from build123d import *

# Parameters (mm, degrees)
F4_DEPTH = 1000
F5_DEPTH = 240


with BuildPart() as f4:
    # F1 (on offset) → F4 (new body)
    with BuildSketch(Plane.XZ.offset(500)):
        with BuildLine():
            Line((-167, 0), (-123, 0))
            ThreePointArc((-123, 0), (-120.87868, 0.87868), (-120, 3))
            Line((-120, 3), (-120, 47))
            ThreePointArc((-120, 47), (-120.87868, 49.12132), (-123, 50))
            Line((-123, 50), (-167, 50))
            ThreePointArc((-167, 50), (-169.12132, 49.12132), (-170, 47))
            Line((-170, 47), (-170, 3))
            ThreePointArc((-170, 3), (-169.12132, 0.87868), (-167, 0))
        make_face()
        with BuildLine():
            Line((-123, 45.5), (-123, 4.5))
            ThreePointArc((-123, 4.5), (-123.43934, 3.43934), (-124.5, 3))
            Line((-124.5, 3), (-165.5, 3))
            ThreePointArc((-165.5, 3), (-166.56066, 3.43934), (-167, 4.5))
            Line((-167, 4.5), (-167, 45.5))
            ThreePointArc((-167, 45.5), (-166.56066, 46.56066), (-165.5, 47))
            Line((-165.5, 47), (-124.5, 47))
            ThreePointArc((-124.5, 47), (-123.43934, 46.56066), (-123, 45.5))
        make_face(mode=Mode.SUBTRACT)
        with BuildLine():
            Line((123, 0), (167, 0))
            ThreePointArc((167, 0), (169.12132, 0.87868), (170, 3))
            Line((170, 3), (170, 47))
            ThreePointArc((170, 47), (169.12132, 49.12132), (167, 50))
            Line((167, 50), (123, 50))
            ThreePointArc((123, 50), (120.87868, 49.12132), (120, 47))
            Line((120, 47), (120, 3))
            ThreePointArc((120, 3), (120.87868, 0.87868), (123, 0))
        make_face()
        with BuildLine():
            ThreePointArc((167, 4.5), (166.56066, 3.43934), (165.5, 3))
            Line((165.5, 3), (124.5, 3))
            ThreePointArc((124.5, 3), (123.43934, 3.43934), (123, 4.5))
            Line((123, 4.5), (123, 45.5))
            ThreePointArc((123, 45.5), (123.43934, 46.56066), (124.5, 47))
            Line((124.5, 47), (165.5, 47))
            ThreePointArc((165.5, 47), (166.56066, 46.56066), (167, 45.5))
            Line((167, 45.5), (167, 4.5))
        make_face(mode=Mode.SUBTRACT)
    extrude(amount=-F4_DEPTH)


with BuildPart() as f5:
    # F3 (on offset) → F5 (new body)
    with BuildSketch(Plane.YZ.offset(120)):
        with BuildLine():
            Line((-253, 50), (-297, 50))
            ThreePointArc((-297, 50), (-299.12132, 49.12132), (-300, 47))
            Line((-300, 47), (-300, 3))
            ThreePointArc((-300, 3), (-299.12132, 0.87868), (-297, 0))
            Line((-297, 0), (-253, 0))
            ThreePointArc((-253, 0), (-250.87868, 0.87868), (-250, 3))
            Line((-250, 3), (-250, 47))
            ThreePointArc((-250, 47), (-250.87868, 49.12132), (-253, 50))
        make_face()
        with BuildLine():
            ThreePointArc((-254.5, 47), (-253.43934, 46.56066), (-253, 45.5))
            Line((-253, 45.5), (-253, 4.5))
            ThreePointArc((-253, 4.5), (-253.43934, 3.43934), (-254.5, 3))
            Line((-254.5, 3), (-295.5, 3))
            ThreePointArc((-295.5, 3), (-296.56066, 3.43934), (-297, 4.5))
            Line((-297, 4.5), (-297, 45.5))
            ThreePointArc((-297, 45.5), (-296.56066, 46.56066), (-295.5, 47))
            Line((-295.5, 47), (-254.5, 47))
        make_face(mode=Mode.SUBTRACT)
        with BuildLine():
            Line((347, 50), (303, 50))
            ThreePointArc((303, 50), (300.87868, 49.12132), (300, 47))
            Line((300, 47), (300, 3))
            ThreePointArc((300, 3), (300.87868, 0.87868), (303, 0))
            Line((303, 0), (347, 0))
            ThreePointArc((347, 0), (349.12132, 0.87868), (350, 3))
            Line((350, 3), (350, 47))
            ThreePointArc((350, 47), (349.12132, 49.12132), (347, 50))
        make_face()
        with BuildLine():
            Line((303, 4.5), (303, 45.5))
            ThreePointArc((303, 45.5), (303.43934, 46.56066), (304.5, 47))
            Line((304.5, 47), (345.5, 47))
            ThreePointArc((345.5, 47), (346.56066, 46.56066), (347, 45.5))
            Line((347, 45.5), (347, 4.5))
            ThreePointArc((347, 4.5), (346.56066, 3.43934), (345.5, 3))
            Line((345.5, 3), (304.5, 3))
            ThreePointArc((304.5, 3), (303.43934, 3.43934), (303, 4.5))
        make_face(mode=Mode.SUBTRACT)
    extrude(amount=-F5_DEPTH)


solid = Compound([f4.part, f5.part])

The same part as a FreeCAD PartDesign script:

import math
import FreeCAD as App
import Part
import Sketcher

doc = App.newDocument("Part")
body = doc.addObject("PartDesign::Body", "Body")
body.AllowCompound = True

sketch1 = body.newObject("Sketcher::SketchObject", "Sketch")
sketch1.AttachmentSupport = (doc.getObject("XZ_Plane"), [""])
sketch1.MapMode = "FlatFace"
sketch1.AttachmentOffset = App.Placement(App.Vector(0, 0, 500), App.Rotation())
sketch1.addGeometry(Part.LineSegment(App.Vector(-167, 0, 0), App.Vector(-123, 0, 0)), False)
sketch1.addGeometry(Part.ArcOfCircle(Part.Circle(App.Vector(-123, 3, 0), App.Vector(0, 0, 1), 3), math.radians(-90), math.radians(0)), False)
sketch1.addGeometry(Part.LineSegment(App.Vector(-120, 3, 0), App.Vector(-120, 47, 0)), False)
sketch1.addGeometry(Part.ArcOfCircle(Part.Circle(App.Vector(-123, 47, 0), App.Vector(0, 0, 1), 3), math.radians(0), math.radians(90)), False)
sketch1.addGeometry(Part.LineSegment(App.Vector(-123, 50, 0), App.Vector(-167, 50, 0)), False)
sketch1.addGeometry(Part.ArcOfCircle(Part.Circle(App.Vector(-167, 47, 0), App.Vector(0, 0, 1), 3), math.radians(90), math.radians(180)), False)
sketch1.addGeometry(Part.LineSegment(App.Vector(-170, 47, 0), App.Vector(-170, 3, 0)), False)
sketch1.addGeometry(Part.ArcOfCircle(Part.Circle(App.Vector(-167, 3, 0), App.Vector(0, 0, 1), 3), math.radians(-180), math.radians(-90)), False)
sketch1.addGeometry(Part.ArcOfCircle(Part.Circle(App.Vector(-124.5, 45.5, 0), App.Vector(0, 0, 1), 1.5), math.radians(0), math.radians(90)), False)
sketch1.addGeometry(Part.LineSegment(App.Vector(-123, 45.5, 0), App.Vector(-123, 4.5, 0)), False)
sketch1.addGeometry(Part.ArcOfCircle(Part.Circle(App.Vector(-124.5, 4.5, 0), App.Vector(0, 0, 1), 1.5), math.radians(-90), math.radians(0)), False)
sketch1.addGeometry(Part.LineSegment(App.Vector(-124.5, 3, 0), App.Vector(-165.5, 3, 0)), False)
sketch1.addGeometry(Part.ArcOfCircle(Part.Circle(App.Vector(-165.5, 4.5, 0), App.Vector(0, 0, 1), 1.5), math.radians(-180), math.radians(-90)), False)
sketch1.addGeometry(Part.LineSegment(App.Vector(-167, 4.5, 0), App.Vector(-167, 45.5, 0)), False)
sketch1.addGeometry(Part.ArcOfCircle(Part.Circle(App.Vector(-165.5, 45.5, 0), App.Vector(0, 0, 1), 1.5), math.radians(90), math.radians(180)), False)
sketch1.addGeometry(Part.LineSegment(App.Vector(-165.5, 47, 0), App.Vector(-124.5, 47, 0)), False)
sketch1.addGeometry(Part.LineSegment(App.Vector(123, 0, 0), App.Vector(167, 0, 0)), False)
sketch1.addGeometry(Part.ArcOfCircle(Part.Circle(App.Vector(167, 3, 0), App.Vector(0, 0, 1), 3), math.radians(-90), math.radians(0)), False)
sketch1.addGeometry(Part.LineSegment(App.Vector(170, 3, 0), App.Vector(170, 47, 0)), False)
sketch1.addGeometry(Part.ArcOfCircle(Part.Circle(App.Vector(167, 47, 0), App.Vector(0, 0, 1), 3), math.radians(0), math.radians(90)), False)
sketch1.addGeometry(Part.LineSegment(App.Vector(167, 50, 0), App.Vector(123, 50, 0)), False)
sketch1.addGeometry(Part.ArcOfCircle(Part.Circle(App.Vector(123, 47, 0), App.Vector(0, 0, 1), 3), math.radians(90), math.radians(180)), False)
sketch1.addGeometry(Part.LineSegment(App.Vector(120, 47, 0), App.Vector(120, 3, 0)), False)
sketch1.addGeometry(Part.ArcOfCircle(Part.Circle(App.Vector(123, 3, 0), App.Vector(0, 0, 1), 3), math.radians(-180), math.radians(-90)), False)
sketch1.addGeometry(Part.LineSegment(App.Vector(167, 45.5, 0), App.Vector(167, 4.5, 0)), False)
sketch1.addGeometry(Part.ArcOfCircle(Part.Circle(App.Vector(165.5, 4.5, 0), App.Vector(0, 0, 1), 1.5), math.radians(-90), math.radians(0)), False)
sketch1.addGeometry(Part.LineSegment(App.Vector(165.5, 3, 0), App.Vector(124.5, 3, 0)), False)
sketch1.addGeometry(Part.ArcOfCircle(Part.Circle(App.Vector(124.5, 4.5, 0), App.Vector(0, 0, 1), 1.5), math.radians(-180), math.radians(-90)), False)
sketch1.addGeometry(Part.LineSegment(App.Vector(123, 4.5, 0), App.Vector(123, 45.5, 0)), False)
sketch1.addGeometry(Part.ArcOfCircle(Part.Circle(App.Vector(124.5, 45.5, 0), App.Vector(0, 0, 1), 1.5), math.radians(90), math.radians(180)), False)
sketch1.addGeometry(Part.LineSegment(App.Vector(124.5, 47, 0), App.Vector(165.5, 47, 0)), False)
sketch1.addGeometry(Part.ArcOfCircle(Part.Circle(App.Vector(165.5, 45.5, 0), App.Vector(0, 0, 1), 1.5), math.radians(0), math.radians(90)), False)
sketch1.addConstraint(Sketcher.Constraint("Tangent", 0, 2, 1, 1))
sketch1.addConstraint(Sketcher.Constraint("Tangent", 1, 2, 2, 1))
sketch1.addConstraint(Sketcher.Constraint("Tangent", 2, 2, 3, 1))
sketch1.addConstraint(Sketcher.Constraint("Tangent", 3, 2, 4, 1))
sketch1.addConstraint(Sketcher.Constraint("Tangent", 4, 2, 5, 1))
sketch1.addConstraint(Sketcher.Constraint("Tangent", 5, 2, 6, 1))
sketch1.addConstraint(Sketcher.Constraint("Tangent", 6, 2, 7, 1))
sketch1.addConstraint(Sketcher.Constraint("Tangent", 7, 2, 0, 1))
sketch1.addConstraint(Sketcher.Constraint("Tangent", 8, 1, 9, 1))
sketch1.addConstraint(Sketcher.Constraint("Tangent", 9, 2, 10, 2))
sketch1.addConstraint(Sketcher.Constraint("Tangent", 10, 1, 11, 1))
sketch1.addConstraint(Sketcher.Constraint("Tangent", 11, 2, 12, 2))
sketch1.addConstraint(Sketcher.Constraint("Tangent", 12, 1, 13, 1))
sketch1.addConstraint(Sketcher.Constraint("Tangent", 13, 2, 14, 2))
sketch1.addConstraint(Sketcher.Constraint("Tangent", 14, 1, 15, 1))
sketch1.addConstraint(Sketcher.Constraint("Tangent", 15, 2, 8, 2))
sketch1.addConstraint(Sketcher.Constraint("Tangent", 16, 2, 17, 1))
sketch1.addConstraint(Sketcher.Constraint("Tangent", 17, 2, 18, 1))
sketch1.addConstraint(Sketcher.Constraint("Tangent", 18, 2, 19, 1))
sketch1.addConstraint(Sketcher.Constraint("Tangent", 19, 2, 20, 1))
sketch1.addConstraint(Sketcher.Constraint("Tangent", 20, 2, 21, 1))
sketch1.addConstraint(Sketcher.Constraint("Tangent", 21, 2, 22, 1))
sketch1.addConstraint(Sketcher.Constraint("Tangent", 22, 2, 23, 1))
sketch1.addConstraint(Sketcher.Constraint("Tangent", 23, 2, 16, 1))
sketch1.addConstraint(Sketcher.Constraint("Tangent", 24, 2, 25, 2))
sketch1.addConstraint(Sketcher.Constraint("Tangent", 25, 1, 26, 1))
sketch1.addConstraint(Sketcher.Constraint("Tangent", 26, 2, 27, 2))
sketch1.addConstraint(Sketcher.Constraint("Tangent", 27, 1, 28, 1))
sketch1.addConstraint(Sketcher.Constraint("Tangent", 28, 2, 29, 2))
sketch1.addConstraint(Sketcher.Constraint("Tangent", 29, 1, 30, 1))
sketch1.addConstraint(Sketcher.Constraint("Tangent", 30, 2, 31, 2))
sketch1.addConstraint(Sketcher.Constraint("Tangent", 31, 1, 24, 1))
sketch1.addConstraint(Sketcher.Constraint("Horizontal", 0))
sketch1.addConstraint(Sketcher.Constraint("Vertical", 2))
sketch1.addConstraint(Sketcher.Constraint("Horizontal", 4))
sketch1.addConstraint(Sketcher.Constraint("Vertical", 6))
sketch1.addConstraint(Sketcher.Constraint("Vertical", 9))
sketch1.addConstraint(Sketcher.Constraint("Horizontal", 11))
sketch1.addConstraint(Sketcher.Constraint("Vertical", 13))
sketch1.addConstraint(Sketcher.Constraint("Horizontal", 15))
sketch1.addConstraint(Sketcher.Constraint("Horizontal", 16))
sketch1.addConstraint(Sketcher.Constraint("Vertical", 18))
sketch1.addConstraint(Sketcher.Constraint("Horizontal", 20))
sketch1.addConstraint(Sketcher.Constraint("Vertical", 22))
sketch1.addConstraint(Sketcher.Constraint("Vertical", 24))
sketch1.addConstraint(Sketcher.Constraint("Horizontal", 26))
sketch1.addConstraint(Sketcher.Constraint("Vertical", 28))
sketch1.addConstraint(Sketcher.Constraint("Horizontal", 30))
sketch1.addConstraint(Sketcher.Constraint("Equal", 1, 3))
sketch1.addConstraint(Sketcher.Constraint("Equal", 3, 5))
sketch1.addConstraint(Sketcher.Constraint("Equal", 5, 7))
sketch1.addConstraint(Sketcher.Constraint("Equal", 8, 10))
sketch1.addConstraint(Sketcher.Constraint("Equal", 10, 12))
sketch1.addConstraint(Sketcher.Constraint("Equal", 12, 14))
sketch1.addConstraint(Sketcher.Constraint("Equal", 7, 17))
sketch1.addConstraint(Sketcher.Constraint("Equal", 17, 19))
sketch1.addConstraint(Sketcher.Constraint("Equal", 19, 21))
sketch1.addConstraint(Sketcher.Constraint("Equal", 21, 23))
sketch1.addConstraint(Sketcher.Constraint("Equal", 14, 25))
sketch1.addConstraint(Sketcher.Constraint("Equal", 25, 27))
sketch1.addConstraint(Sketcher.Constraint("Equal", 27, 29))
sketch1.addConstraint(Sketcher.Constraint("Equal", 29, 31))
sketch1.addConstraint(Sketcher.Constraint("Symmetric", 7, 2, 16, 2, -1, 1))
sketch1.addConstraint(Sketcher.Constraint("Symmetric", 3, 3, 21, 3, -2))
sketch1.addConstraint(Sketcher.Constraint("Symmetric", 12, 3, 25, 3, -2))
sketch1.addConstraint(Sketcher.Constraint("Symmetric", 8, 3, 29, 3, -2))
sketch1.addConstraint(Sketcher.Constraint("PointOnObject", 0, 2, -1))
sketch1.addConstraint(Sketcher.Constraint("Horizontal", 6, 2, 10, 1))
sketch1.addConstraint(Sketcher.Constraint("Horizontal", 5, 2, 14, 1))
sketch1.addConstraint(Sketcher.Constraint("Vertical", 3, 2, 8, 1))
sketch1.addConstraint(Sketcher.Constraint("Vertical", 7, 2, 12, 1))
sketch1.addConstraint(Sketcher.Constraint("Equal", 20, 2))
sketch1.addConstraint(Sketcher.Constraint("Radius", 1, 3.000001))
sketch1.addConstraint(Sketcher.Constraint("Radius", 8, 1.500001))
sketch1.addConstraint(Sketcher.Constraint("DistanceX", 0, 1, 0, 2, 44.0))
sketch1.addConstraint(Sketcher.Constraint("DistanceX", 1, 3, -1, 1, 123.000001))
pad1 = body.newObject("PartDesign::Pad", "Pad")
pad1.Profile = sketch1
pad1.Length = 1000
pad1.Reversed = True
body2 = doc.addObject("PartDesign::Body", "Body001")
body2.AllowCompound = True

sketch2 = body2.newObject("Sketcher::SketchObject", "Sketch001")
sketch2.AttachmentSupport = (doc.getObject("YZ_Plane001"), [""])
sketch2.MapMode = "FlatFace"
sketch2.AttachmentOffset = App.Placement(App.Vector(0, 0, 120), App.Rotation())
sketch2.addGeometry(Part.LineSegment(App.Vector(-253, 50, 0), App.Vector(-297, 50, 0)), False)
sketch2.addGeometry(Part.ArcOfCircle(Part.Circle(App.Vector(-297, 47, 0), App.Vector(0, 0, 1), 3), math.radians(90), math.radians(180)), False)
sketch2.addGeometry(Part.LineSegment(App.Vector(-300, 47, 0), App.Vector(-300, 3, 0)), False)
sketch2.addGeometry(Part.ArcOfCircle(Part.Circle(App.Vector(-297, 3, 0), App.Vector(0, 0, 1), 3), math.radians(-180), math.radians(-90)), False)
sketch2.addGeometry(Part.LineSegment(App.Vector(-297, 0, 0), App.Vector(-253, 0, 0)), False)
sketch2.addGeometry(Part.ArcOfCircle(Part.Circle(App.Vector(-253, 3, 0), App.Vector(0, 0, 1), 3), math.radians(-90), math.radians(0)), False)
sketch2.addGeometry(Part.LineSegment(App.Vector(-250, 3, 0), App.Vector(-250, 47, 0)), False)
sketch2.addGeometry(Part.ArcOfCircle(Part.Circle(App.Vector(-253, 47, 0), App.Vector(0, 0, 1), 3), math.radians(0), math.radians(90)), False)
sketch2.addGeometry(Part.LineSegment(App.Vector(-295.5, 47, 0), App.Vector(-254.5, 47, 0)), False)
sketch2.addGeometry(Part.ArcOfCircle(Part.Circle(App.Vector(-254.5, 45.5, 0), App.Vector(0, 0, 1), 1.5), math.radians(0), math.radians(90)), False)
sketch2.addGeometry(Part.LineSegment(App.Vector(-253, 45.5, 0), App.Vector(-253, 4.5, 0)), False)
sketch2.addGeometry(Part.ArcOfCircle(Part.Circle(App.Vector(-254.5, 4.5, 0), App.Vector(0, 0, 1), 1.5), math.radians(-90), math.radians(0)), False)
sketch2.addGeometry(Part.LineSegment(App.Vector(-254.5, 3, 0), App.Vector(-295.5, 3, 0)), False)
sketch2.addGeometry(Part.ArcOfCircle(Part.Circle(App.Vector(-295.5, 4.5, 0), App.Vector(0, 0, 1), 1.5), math.radians(-180), math.radians(-90)), False)
sketch2.addGeometry(Part.LineSegment(App.Vector(-297, 4.5, 0), App.Vector(-297, 45.5, 0)), False)
sketch2.addGeometry(Part.ArcOfCircle(Part.Circle(App.Vector(-295.5, 45.5, 0), App.Vector(0, 0, 1), 1.5), math.radians(90), math.radians(180)), False)
sketch2.addGeometry(Part.LineSegment(App.Vector(347, 50, 0), App.Vector(303, 50, 0)), False)
sketch2.addGeometry(Part.ArcOfCircle(Part.Circle(App.Vector(303, 47, 0), App.Vector(0, 0, 1), 3), math.radians(90), math.radians(180)), False)
sketch2.addGeometry(Part.LineSegment(App.Vector(300, 47, 0), App.Vector(300, 3, 0)), False)
sketch2.addGeometry(Part.ArcOfCircle(Part.Circle(App.Vector(303, 3, 0), App.Vector(0, 0, 1), 3), math.radians(-180), math.radians(-90)), False)
sketch2.addGeometry(Part.LineSegment(App.Vector(303, 0, 0), App.Vector(347, 0, 0)), False)
sketch2.addGeometry(Part.ArcOfCircle(Part.Circle(App.Vector(347, 3, 0), App.Vector(0, 0, 1), 3), math.radians(-90), math.radians(0)), False)
sketch2.addGeometry(Part.LineSegment(App.Vector(350, 3, 0), App.Vector(350, 47, 0)), False)
sketch2.addGeometry(Part.ArcOfCircle(Part.Circle(App.Vector(347, 47, 0), App.Vector(0, 0, 1), 3), math.radians(0), math.radians(90)), False)
sketch2.addGeometry(Part.ArcOfCircle(Part.Circle(App.Vector(304.5, 4.5, 0), App.Vector(0, 0, 1), 1.5), math.radians(-180), math.radians(-90)), False)
sketch2.addGeometry(Part.LineSegment(App.Vector(303, 4.5, 0), App.Vector(303, 45.5, 0)), False)
sketch2.addGeometry(Part.ArcOfCircle(Part.Circle(App.Vector(304.5, 45.5, 0), App.Vector(0, 0, 1), 1.5), math.radians(90), math.radians(180)), False)
sketch2.addGeometry(Part.LineSegment(App.Vector(304.5, 47, 0), App.Vector(345.5, 47, 0)), False)
sketch2.addGeometry(Part.ArcOfCircle(Part.Circle(App.Vector(345.5, 45.5, 0), App.Vector(0, 0, 1), 1.5), math.radians(0), math.radians(90)), False)
sketch2.addGeometry(Part.LineSegment(App.Vector(347, 45.5, 0), App.Vector(347, 4.5, 0)), False)
sketch2.addGeometry(Part.ArcOfCircle(Part.Circle(App.Vector(345.5, 4.5, 0), App.Vector(0, 0, 1), 1.5), math.radians(-90), math.radians(0)), False)
sketch2.addGeometry(Part.LineSegment(App.Vector(345.5, 3, 0), App.Vector(304.5, 3, 0)), False)
sketch2.addConstraint(Sketcher.Constraint("Tangent", 0, 2, 1, 1))
sketch2.addConstraint(Sketcher.Constraint("Tangent", 1, 2, 2, 1))
sketch2.addConstraint(Sketcher.Constraint("Tangent", 2, 2, 3, 1))
sketch2.addConstraint(Sketcher.Constraint("Tangent", 3, 2, 4, 1))
sketch2.addConstraint(Sketcher.Constraint("Tangent", 4, 2, 5, 1))
sketch2.addConstraint(Sketcher.Constraint("Tangent", 5, 2, 6, 1))
sketch2.addConstraint(Sketcher.Constraint("Tangent", 6, 2, 7, 1))
sketch2.addConstraint(Sketcher.Constraint("Tangent", 7, 2, 0, 1))
sketch2.addConstraint(Sketcher.Constraint("Tangent", 8, 2, 9, 2))
sketch2.addConstraint(Sketcher.Constraint("Tangent", 9, 1, 10, 1))
sketch2.addConstraint(Sketcher.Constraint("Tangent", 10, 2, 11, 2))
sketch2.addConstraint(Sketcher.Constraint("Tangent", 11, 1, 12, 1))
sketch2.addConstraint(Sketcher.Constraint("Tangent", 12, 2, 13, 2))
sketch2.addConstraint(Sketcher.Constraint("Tangent", 13, 1, 14, 1))
sketch2.addConstraint(Sketcher.Constraint("Tangent", 14, 2, 15, 2))
sketch2.addConstraint(Sketcher.Constraint("Tangent", 15, 1, 8, 1))
sketch2.addConstraint(Sketcher.Constraint("Tangent", 16, 2, 17, 1))
sketch2.addConstraint(Sketcher.Constraint("Tangent", 17, 2, 18, 1))
sketch2.addConstraint(Sketcher.Constraint("Tangent", 18, 2, 19, 1))
sketch2.addConstraint(Sketcher.Constraint("Tangent", 19, 2, 20, 1))
sketch2.addConstraint(Sketcher.Constraint("Tangent", 20, 2, 21, 1))
sketch2.addConstraint(Sketcher.Constraint("Tangent", 21, 2, 22, 1))
sketch2.addConstraint(Sketcher.Constraint("Tangent", 22, 2, 23, 1))
sketch2.addConstraint(Sketcher.Constraint("Tangent", 23, 2, 16, 1))
sketch2.addConstraint(Sketcher.Constraint("Tangent", 24, 1, 25, 1))
sketch2.addConstraint(Sketcher.Constraint("Tangent", 25, 2, 26, 2))
sketch2.addConstraint(Sketcher.Constraint("Tangent", 26, 1, 27, 1))
sketch2.addConstraint(Sketcher.Constraint("Tangent", 27, 2, 28, 2))
sketch2.addConstraint(Sketcher.Constraint("Tangent", 28, 1, 29, 1))
sketch2.addConstraint(Sketcher.Constraint("Tangent", 29, 2, 30, 2))
sketch2.addConstraint(Sketcher.Constraint("Tangent", 30, 1, 31, 1))
sketch2.addConstraint(Sketcher.Constraint("Tangent", 31, 2, 24, 2))
sketch2.addConstraint(Sketcher.Constraint("Horizontal", 0))
sketch2.addConstraint(Sketcher.Constraint("Vertical", 2))
sketch2.addConstraint(Sketcher.Constraint("Horizontal", 4))
sketch2.addConstraint(Sketcher.Constraint("Vertical", 6))
sketch2.addConstraint(Sketcher.Constraint("Horizontal", 8))
sketch2.addConstraint(Sketcher.Constraint("Vertical", 10))
sketch2.addConstraint(Sketcher.Constraint("Horizontal", 12))
sketch2.addConstraint(Sketcher.Constraint("Vertical", 14))
sketch2.addConstraint(Sketcher.Constraint("Horizontal", 16))
sketch2.addConstraint(Sketcher.Constraint("Vertical", 18))
sketch2.addConstraint(Sketcher.Constraint("Horizontal", 20))
sketch2.addConstraint(Sketcher.Constraint("Vertical", 22))
sketch2.addConstraint(Sketcher.Constraint("Vertical", 25))
sketch2.addConstraint(Sketcher.Constraint("Horizontal", 27))
sketch2.addConstraint(Sketcher.Constraint("Vertical", 29))
sketch2.addConstraint(Sketcher.Constraint("Horizontal", 31))
sketch2.addConstraint(Sketcher.Constraint("Equal", 1, 3))
sketch2.addConstraint(Sketcher.Constraint("Equal", 3, 5))
sketch2.addConstraint(Sketcher.Constraint("Equal", 5, 7))
sketch2.addConstraint(Sketcher.Constraint("Equal", 9, 11))
sketch2.addConstraint(Sketcher.Constraint("Equal", 11, 13))
sketch2.addConstraint(Sketcher.Constraint("Equal", 13, 15))
sketch2.addConstraint(Sketcher.Constraint("Equal", 7, 17))
sketch2.addConstraint(Sketcher.Constraint("Equal", 17, 19))
sketch2.addConstraint(Sketcher.Constraint("Equal", 19, 21))
sketch2.addConstraint(Sketcher.Constraint("Equal", 21, 23))
sketch2.addConstraint(Sketcher.Constraint("Equal", 15, 24))
sketch2.addConstraint(Sketcher.Constraint("Equal", 24, 26))
sketch2.addConstraint(Sketcher.Constraint("Equal", 26, 28))
sketch2.addConstraint(Sketcher.Constraint("Equal", 28, 30))
sketch2.addConstraint(Sketcher.Constraint("Symmetric", 1, 2, 17, 2, -2))
sketch2.addConstraint(Sketcher.Constraint("PointOnObject", 3, 2, -1))
sketch2.addConstraint(Sketcher.Constraint("PointOnObject", 19, 2, -1))
sketch2.addConstraint(Sketcher.Constraint("Horizontal", 13, 3, 24, 3))
sketch2.addConstraint(Sketcher.Constraint("Horizontal", 15, 3, 26, 3))
sketch2.addConstraint(Sketcher.Constraint("Horizontal", 6, 2, 8, 2))
sketch2.addConstraint(Sketcher.Constraint("Horizontal", 5, 2, 11, 1))
sketch2.addConstraint(Sketcher.Constraint("Vertical", 7, 2, 9, 1))
sketch2.addConstraint(Sketcher.Constraint("Vertical", 3, 2, 13, 1))
sketch2.addConstraint(Sketcher.Constraint("Vertical", 19, 2, 24, 1))
sketch2.addConstraint(Sketcher.Constraint("Vertical", 23, 2, 28, 1))
sketch2.addConstraint(Sketcher.Constraint("Equal", 4, 16))
sketch2.addConstraint(Sketcher.Constraint("Equal", 20, 2))
sketch2.addConstraint(Sketcher.Constraint("Radius", 1, 3.000001))
sketch2.addConstraint(Sketcher.Constraint("Radius", 9, 1.500001))
sketch2.addConstraint(Sketcher.Constraint("DistanceX", 0, 2, 0, 1, 44.0))
sketch2.addConstraint(Sketcher.Constraint("DistanceX", 1, 3, -1, 1, 296.999999))
pad2 = body2.newObject("PartDesign::Pad", "Pad001")
pad2.Profile = sketch2
pad2.Length = 240
pad2.Reversed = True

doc.recompute()
